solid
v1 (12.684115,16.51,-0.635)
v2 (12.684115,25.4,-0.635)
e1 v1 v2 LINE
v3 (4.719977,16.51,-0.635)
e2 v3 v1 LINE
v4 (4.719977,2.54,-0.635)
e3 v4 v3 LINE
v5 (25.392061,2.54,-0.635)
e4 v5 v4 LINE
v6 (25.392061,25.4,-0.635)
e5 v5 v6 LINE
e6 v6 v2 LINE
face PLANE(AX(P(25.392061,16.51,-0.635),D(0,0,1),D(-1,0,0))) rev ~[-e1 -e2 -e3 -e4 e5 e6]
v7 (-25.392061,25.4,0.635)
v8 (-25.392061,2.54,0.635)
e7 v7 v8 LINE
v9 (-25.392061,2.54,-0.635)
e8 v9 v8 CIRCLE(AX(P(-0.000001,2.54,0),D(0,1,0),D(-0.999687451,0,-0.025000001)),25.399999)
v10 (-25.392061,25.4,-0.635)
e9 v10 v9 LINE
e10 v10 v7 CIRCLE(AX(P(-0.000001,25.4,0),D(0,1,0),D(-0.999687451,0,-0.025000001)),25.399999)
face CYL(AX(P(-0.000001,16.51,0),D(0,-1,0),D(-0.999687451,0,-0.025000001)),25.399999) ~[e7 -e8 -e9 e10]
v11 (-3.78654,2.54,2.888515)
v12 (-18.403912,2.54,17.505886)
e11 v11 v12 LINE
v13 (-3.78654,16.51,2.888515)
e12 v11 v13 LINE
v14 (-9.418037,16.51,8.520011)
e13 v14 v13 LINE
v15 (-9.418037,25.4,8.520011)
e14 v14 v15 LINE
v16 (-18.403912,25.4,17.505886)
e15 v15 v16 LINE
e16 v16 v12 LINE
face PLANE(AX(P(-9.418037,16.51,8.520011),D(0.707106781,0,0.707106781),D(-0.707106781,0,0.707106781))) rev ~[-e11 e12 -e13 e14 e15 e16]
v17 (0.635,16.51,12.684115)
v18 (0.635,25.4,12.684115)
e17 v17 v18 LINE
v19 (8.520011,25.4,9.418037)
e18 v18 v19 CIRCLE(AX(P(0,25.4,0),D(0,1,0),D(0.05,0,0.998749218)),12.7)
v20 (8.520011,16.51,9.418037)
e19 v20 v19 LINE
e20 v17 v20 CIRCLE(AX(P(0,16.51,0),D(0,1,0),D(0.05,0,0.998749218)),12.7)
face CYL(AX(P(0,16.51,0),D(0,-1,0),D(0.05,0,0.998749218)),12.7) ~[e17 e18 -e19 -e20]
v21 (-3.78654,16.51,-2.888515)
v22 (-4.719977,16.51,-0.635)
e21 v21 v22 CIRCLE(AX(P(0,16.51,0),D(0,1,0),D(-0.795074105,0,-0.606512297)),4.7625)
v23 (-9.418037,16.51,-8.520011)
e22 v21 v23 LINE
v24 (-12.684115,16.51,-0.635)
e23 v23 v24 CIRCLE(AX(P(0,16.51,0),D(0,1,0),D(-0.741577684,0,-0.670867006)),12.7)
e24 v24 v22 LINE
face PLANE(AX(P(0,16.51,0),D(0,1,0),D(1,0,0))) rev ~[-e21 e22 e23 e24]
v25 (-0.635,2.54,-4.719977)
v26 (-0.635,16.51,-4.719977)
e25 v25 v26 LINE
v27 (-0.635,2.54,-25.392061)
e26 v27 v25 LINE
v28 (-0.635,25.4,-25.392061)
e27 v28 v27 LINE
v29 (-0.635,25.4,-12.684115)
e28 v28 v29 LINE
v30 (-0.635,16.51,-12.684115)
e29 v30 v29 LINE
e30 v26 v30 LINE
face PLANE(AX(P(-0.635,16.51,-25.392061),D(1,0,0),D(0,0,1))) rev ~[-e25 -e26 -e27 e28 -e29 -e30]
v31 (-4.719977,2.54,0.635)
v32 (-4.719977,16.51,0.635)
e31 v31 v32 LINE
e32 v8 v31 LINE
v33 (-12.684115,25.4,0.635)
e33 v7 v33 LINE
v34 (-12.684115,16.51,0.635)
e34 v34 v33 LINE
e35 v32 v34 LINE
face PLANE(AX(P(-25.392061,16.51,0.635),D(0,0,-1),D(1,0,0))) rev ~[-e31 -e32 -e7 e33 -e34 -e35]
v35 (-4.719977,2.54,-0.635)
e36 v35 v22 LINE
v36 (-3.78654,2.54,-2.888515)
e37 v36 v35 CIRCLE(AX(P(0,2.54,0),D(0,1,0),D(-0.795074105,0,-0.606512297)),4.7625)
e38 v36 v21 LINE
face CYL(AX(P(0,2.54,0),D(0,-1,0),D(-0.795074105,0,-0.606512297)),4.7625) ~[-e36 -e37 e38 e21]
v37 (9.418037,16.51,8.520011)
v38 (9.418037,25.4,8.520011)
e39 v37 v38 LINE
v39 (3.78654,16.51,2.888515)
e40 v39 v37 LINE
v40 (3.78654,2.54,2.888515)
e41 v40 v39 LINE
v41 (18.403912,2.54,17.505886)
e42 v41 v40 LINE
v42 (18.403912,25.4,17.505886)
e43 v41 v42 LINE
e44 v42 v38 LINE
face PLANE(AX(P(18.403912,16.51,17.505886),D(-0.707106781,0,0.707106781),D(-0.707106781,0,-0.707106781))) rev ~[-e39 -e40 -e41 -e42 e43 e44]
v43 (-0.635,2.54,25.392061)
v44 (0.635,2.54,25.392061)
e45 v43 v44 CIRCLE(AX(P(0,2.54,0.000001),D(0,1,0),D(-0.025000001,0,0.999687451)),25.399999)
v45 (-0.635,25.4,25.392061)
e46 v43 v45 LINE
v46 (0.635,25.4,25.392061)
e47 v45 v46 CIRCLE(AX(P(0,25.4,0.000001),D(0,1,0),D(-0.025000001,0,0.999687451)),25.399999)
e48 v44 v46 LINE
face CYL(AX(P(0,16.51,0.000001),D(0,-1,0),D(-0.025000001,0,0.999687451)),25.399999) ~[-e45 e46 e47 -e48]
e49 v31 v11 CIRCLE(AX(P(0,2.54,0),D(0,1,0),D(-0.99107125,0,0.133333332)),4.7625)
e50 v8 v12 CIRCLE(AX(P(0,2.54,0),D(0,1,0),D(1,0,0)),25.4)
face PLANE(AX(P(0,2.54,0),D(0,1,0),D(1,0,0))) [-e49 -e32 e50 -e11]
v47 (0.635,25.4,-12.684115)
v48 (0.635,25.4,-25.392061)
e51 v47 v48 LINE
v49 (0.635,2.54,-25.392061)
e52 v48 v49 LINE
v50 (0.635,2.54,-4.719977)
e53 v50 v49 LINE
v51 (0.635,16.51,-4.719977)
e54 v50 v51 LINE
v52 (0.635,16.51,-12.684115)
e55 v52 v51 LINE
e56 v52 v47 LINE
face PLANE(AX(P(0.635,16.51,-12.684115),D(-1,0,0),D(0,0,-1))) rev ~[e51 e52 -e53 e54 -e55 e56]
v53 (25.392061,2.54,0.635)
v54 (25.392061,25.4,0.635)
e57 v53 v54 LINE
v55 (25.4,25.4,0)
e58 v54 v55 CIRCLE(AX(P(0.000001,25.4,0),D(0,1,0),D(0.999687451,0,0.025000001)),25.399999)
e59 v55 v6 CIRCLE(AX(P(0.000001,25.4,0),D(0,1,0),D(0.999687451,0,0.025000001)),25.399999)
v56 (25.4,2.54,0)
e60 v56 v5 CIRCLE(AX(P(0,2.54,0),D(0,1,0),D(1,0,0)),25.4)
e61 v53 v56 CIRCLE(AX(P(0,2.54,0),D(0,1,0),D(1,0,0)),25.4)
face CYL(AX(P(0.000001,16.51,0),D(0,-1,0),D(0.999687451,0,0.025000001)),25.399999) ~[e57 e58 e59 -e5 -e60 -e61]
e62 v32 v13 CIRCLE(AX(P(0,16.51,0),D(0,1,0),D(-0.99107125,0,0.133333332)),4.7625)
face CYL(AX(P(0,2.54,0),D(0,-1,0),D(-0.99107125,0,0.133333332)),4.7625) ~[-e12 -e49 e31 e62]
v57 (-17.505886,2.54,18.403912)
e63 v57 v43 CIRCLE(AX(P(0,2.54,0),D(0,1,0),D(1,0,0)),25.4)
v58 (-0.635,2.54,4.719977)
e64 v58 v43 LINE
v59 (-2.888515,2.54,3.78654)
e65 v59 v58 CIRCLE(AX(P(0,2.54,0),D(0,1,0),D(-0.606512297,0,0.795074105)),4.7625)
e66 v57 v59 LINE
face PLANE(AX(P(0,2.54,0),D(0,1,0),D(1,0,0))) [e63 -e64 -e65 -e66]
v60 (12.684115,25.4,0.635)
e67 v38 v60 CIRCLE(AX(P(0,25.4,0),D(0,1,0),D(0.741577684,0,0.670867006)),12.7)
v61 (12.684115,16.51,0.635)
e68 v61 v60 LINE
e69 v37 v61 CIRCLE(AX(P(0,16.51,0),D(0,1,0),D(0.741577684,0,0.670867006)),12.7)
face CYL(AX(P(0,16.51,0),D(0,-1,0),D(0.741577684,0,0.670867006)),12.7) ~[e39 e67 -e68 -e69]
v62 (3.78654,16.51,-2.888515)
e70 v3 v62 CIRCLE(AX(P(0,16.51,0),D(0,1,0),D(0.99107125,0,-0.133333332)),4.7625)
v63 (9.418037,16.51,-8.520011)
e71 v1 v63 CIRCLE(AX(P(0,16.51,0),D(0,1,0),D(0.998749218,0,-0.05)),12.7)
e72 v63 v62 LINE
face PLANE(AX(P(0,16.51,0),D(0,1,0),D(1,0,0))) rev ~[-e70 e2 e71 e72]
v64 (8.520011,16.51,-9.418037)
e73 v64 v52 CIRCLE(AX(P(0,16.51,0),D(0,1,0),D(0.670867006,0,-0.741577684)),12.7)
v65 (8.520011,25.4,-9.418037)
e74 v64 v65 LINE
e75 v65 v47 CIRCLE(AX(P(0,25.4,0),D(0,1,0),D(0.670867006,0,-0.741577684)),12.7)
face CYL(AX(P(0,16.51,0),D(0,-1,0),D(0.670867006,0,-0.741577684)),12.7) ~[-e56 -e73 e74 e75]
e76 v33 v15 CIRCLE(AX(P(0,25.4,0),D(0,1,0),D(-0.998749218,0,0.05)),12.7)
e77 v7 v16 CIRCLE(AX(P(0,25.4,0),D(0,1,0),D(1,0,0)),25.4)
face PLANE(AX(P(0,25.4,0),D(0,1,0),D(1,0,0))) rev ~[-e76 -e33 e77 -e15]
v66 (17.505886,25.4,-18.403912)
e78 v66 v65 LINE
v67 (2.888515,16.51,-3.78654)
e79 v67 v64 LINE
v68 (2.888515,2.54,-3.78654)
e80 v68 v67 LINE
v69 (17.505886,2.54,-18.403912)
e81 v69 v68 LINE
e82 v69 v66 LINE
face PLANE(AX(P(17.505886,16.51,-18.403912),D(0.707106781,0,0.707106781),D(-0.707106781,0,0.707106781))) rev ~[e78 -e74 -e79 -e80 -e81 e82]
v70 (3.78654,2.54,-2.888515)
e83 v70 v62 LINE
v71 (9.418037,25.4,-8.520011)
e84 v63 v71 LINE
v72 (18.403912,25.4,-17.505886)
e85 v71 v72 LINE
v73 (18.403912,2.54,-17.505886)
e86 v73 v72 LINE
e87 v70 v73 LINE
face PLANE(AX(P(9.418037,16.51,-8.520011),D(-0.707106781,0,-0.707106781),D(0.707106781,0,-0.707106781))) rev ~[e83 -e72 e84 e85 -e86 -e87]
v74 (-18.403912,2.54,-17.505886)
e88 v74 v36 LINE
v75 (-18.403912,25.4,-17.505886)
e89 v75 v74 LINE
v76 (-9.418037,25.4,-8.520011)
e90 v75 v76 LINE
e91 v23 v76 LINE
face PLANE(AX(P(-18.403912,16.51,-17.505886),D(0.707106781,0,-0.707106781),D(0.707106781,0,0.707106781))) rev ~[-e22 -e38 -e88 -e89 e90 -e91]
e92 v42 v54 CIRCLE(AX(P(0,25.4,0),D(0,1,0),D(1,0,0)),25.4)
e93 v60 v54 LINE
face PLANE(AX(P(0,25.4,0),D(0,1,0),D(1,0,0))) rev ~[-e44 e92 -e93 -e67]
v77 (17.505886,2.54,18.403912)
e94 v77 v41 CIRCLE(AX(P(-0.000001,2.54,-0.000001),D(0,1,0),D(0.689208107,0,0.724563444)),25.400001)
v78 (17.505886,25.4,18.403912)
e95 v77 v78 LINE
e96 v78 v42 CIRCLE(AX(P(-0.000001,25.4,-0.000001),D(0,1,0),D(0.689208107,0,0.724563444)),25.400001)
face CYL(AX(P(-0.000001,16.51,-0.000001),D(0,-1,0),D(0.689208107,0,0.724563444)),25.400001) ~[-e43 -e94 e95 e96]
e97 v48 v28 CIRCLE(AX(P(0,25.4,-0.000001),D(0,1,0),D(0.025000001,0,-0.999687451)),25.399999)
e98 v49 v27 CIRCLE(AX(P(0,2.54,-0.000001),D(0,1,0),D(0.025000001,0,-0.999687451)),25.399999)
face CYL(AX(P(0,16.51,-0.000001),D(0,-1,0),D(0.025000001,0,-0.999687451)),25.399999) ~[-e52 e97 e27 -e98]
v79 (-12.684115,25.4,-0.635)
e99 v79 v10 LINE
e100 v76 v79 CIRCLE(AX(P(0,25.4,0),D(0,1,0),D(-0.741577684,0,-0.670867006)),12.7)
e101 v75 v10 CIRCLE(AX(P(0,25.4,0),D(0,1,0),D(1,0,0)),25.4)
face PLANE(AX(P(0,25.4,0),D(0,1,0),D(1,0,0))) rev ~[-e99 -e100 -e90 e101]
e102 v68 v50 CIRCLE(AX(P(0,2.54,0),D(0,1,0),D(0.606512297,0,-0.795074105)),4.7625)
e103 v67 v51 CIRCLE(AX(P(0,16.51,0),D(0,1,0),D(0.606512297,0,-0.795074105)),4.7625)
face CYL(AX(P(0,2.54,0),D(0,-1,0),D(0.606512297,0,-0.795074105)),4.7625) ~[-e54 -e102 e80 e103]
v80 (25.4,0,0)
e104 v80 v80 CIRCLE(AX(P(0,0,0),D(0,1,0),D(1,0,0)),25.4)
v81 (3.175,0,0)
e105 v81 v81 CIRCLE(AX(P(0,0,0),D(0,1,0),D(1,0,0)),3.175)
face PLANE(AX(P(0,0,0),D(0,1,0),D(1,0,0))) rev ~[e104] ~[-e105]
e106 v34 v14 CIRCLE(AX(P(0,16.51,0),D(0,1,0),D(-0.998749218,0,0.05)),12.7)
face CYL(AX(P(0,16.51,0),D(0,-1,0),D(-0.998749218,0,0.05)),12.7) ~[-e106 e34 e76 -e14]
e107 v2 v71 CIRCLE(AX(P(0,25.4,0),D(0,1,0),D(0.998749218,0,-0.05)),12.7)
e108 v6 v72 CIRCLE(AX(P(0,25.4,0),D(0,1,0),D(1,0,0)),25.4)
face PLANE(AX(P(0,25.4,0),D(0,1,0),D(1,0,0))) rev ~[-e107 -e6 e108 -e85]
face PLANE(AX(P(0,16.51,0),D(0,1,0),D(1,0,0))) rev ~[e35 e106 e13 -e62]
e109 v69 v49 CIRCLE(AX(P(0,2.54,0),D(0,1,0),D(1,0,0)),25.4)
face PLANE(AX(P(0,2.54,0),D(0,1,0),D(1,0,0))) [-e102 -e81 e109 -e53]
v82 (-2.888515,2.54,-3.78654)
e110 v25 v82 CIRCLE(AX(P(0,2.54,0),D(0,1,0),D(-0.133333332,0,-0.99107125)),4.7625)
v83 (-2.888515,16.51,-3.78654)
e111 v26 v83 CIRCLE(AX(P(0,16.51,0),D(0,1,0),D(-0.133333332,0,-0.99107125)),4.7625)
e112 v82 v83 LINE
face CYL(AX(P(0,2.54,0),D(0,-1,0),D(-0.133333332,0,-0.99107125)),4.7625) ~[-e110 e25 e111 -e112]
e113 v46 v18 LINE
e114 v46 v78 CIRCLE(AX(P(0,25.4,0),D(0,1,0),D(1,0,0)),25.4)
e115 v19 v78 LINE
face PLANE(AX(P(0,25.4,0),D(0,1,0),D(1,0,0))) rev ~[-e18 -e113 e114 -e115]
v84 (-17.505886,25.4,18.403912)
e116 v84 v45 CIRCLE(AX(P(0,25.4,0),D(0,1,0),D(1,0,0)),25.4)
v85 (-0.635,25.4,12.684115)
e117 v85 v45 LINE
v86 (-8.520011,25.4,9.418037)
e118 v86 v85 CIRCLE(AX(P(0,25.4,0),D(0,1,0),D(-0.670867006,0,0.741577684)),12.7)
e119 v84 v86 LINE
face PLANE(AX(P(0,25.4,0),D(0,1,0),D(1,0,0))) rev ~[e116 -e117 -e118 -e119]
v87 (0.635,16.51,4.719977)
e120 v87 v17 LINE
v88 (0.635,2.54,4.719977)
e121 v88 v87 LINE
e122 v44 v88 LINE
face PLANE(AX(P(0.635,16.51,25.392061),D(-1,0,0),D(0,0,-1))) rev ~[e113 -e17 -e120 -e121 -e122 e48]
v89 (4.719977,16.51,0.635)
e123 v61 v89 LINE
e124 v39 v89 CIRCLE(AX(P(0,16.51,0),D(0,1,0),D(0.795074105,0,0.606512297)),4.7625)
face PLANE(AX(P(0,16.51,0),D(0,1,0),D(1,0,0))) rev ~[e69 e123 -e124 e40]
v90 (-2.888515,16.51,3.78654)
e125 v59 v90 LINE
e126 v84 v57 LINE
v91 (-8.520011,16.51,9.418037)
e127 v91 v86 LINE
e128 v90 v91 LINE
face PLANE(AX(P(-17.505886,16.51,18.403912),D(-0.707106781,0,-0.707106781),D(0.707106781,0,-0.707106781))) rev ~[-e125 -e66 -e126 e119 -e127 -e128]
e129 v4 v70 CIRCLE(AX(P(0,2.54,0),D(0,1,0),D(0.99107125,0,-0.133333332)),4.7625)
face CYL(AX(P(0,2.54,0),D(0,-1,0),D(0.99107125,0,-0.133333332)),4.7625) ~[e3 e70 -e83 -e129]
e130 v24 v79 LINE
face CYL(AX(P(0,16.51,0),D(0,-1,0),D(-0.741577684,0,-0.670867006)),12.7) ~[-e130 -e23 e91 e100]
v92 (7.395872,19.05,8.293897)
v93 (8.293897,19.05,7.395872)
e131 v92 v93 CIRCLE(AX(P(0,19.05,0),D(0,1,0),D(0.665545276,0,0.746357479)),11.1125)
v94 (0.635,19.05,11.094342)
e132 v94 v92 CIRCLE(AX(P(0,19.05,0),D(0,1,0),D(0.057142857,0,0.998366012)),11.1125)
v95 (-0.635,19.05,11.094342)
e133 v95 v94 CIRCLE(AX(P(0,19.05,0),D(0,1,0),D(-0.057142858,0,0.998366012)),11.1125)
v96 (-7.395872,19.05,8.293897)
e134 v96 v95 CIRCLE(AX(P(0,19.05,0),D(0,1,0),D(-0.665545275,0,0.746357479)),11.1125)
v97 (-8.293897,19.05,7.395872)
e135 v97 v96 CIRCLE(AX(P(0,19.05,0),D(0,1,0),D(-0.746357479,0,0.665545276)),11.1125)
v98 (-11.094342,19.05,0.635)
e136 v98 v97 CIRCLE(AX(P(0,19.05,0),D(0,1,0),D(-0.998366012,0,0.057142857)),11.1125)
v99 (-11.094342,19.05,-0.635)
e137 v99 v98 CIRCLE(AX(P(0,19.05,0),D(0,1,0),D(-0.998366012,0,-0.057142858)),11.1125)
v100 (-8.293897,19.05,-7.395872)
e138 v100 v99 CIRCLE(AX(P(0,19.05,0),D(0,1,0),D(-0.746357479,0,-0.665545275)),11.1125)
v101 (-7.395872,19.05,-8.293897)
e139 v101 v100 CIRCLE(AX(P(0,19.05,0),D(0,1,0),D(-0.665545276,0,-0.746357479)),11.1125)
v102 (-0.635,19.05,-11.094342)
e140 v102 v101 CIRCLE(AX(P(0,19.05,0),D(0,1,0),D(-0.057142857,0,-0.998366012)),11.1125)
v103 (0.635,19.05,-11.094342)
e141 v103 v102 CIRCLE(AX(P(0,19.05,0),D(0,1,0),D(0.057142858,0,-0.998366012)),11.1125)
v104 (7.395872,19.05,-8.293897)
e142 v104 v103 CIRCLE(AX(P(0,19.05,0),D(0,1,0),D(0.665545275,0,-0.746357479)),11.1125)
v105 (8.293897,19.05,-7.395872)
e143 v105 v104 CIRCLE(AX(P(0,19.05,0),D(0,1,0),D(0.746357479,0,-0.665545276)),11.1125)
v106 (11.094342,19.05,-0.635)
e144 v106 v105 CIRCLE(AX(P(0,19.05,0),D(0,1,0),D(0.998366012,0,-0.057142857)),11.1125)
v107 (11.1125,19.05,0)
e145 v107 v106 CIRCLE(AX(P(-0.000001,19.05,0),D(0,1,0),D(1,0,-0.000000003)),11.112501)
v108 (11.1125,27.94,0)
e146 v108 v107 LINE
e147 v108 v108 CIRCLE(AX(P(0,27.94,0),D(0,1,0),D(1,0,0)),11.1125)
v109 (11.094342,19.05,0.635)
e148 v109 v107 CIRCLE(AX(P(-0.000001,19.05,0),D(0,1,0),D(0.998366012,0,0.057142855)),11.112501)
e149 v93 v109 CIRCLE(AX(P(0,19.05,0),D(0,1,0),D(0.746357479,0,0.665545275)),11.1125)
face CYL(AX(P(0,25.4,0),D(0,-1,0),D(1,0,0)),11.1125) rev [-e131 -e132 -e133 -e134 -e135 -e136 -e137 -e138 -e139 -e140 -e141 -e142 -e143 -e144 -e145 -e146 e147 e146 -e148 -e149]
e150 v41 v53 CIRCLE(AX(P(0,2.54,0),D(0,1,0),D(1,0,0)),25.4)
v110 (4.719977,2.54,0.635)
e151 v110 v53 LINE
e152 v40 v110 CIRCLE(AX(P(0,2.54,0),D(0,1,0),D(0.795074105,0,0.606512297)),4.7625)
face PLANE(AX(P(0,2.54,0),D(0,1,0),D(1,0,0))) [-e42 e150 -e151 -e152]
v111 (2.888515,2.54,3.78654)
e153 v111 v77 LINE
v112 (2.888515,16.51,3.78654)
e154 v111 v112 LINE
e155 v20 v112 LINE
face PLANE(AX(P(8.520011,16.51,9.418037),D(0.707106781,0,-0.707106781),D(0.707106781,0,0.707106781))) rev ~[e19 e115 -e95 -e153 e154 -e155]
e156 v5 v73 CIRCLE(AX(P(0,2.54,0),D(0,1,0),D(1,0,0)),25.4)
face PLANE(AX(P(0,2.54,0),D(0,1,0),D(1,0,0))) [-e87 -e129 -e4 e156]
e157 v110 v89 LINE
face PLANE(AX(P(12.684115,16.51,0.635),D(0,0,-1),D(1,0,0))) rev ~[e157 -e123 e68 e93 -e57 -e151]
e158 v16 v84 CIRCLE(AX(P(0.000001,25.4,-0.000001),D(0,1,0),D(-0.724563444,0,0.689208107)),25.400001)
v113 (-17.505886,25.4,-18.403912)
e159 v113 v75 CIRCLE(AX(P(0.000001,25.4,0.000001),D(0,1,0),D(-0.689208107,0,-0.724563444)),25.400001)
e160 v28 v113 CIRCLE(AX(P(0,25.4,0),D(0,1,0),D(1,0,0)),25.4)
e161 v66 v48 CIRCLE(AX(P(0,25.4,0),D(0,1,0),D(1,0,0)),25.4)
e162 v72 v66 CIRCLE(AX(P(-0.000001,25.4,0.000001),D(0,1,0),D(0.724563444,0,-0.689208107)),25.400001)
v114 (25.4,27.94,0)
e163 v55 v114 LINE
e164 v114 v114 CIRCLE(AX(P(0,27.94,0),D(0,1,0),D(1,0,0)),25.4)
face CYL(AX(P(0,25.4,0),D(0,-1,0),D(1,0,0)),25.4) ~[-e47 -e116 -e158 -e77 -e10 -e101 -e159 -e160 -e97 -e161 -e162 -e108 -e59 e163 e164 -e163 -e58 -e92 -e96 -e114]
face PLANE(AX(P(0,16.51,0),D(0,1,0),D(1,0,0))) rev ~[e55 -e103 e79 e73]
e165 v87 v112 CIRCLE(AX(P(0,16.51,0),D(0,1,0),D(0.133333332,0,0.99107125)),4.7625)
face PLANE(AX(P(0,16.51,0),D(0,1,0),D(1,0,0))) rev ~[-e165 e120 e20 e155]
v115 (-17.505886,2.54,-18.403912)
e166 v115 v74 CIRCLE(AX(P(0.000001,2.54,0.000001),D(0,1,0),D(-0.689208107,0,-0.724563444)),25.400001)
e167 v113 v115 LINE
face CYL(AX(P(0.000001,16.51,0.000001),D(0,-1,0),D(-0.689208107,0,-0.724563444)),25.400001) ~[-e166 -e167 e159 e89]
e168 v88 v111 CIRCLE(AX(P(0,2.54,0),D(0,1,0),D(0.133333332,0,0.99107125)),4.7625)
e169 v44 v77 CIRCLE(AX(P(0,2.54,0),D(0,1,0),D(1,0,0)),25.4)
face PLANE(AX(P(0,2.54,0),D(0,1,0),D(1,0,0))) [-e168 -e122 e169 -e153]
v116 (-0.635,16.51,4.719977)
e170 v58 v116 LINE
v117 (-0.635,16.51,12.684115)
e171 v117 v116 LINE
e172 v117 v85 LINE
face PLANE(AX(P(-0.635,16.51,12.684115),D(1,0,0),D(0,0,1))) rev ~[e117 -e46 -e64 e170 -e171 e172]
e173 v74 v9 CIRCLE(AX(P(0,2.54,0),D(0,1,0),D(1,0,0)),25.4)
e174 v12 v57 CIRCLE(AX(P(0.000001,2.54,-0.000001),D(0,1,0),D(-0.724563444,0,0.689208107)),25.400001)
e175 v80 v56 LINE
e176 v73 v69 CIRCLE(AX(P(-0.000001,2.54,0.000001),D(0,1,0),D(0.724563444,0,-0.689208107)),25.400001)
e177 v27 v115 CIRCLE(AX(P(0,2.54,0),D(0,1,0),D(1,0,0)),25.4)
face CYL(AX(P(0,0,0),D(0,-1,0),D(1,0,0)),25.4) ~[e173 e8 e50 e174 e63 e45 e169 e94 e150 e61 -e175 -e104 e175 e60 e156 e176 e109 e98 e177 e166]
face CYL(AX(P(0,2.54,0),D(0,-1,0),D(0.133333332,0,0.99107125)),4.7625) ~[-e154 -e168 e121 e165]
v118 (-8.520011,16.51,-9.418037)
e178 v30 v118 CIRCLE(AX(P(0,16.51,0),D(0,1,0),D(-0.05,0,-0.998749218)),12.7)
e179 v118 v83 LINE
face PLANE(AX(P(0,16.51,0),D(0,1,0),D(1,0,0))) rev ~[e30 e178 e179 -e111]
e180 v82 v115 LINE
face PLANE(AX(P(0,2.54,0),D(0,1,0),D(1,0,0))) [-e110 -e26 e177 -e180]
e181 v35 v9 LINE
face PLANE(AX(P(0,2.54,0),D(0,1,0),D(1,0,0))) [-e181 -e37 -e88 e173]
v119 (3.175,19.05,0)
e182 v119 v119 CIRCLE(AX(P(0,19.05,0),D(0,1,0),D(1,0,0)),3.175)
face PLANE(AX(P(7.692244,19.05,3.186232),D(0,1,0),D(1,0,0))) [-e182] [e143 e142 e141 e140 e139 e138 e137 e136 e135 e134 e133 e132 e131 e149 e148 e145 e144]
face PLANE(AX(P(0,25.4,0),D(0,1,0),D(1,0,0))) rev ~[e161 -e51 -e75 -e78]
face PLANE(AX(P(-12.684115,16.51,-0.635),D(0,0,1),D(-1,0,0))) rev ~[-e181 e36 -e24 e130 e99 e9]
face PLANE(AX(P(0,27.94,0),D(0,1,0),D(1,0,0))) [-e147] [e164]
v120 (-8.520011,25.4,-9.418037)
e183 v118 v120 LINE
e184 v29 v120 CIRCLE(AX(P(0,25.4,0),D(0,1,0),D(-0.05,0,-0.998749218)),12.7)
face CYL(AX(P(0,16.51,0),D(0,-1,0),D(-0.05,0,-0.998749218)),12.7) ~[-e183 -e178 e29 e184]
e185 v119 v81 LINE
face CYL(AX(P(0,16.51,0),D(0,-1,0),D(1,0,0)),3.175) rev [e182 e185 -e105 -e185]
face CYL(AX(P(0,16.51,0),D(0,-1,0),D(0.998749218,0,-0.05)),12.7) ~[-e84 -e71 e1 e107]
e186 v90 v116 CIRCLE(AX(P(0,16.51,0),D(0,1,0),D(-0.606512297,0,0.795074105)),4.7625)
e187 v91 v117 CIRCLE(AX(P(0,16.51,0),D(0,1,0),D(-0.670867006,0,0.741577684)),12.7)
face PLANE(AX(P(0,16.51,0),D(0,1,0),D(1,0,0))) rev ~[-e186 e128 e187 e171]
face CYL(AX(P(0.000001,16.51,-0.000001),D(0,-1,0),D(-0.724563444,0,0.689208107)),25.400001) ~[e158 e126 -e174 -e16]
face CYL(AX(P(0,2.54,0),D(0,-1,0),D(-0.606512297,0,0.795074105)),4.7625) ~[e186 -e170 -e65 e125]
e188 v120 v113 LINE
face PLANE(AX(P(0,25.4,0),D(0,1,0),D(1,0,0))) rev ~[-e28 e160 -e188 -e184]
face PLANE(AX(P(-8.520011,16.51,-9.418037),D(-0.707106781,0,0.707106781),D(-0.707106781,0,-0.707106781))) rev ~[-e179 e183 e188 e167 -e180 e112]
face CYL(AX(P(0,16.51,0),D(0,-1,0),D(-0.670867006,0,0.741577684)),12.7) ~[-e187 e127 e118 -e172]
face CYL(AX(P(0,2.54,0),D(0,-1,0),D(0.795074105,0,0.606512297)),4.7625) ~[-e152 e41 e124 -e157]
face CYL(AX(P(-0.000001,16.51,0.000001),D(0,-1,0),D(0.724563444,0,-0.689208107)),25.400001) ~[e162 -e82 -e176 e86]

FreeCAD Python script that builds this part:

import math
import FreeCAD as App
import Part
import Sketcher
Q = App.Units.Quantity

doc = App.newDocument("Part")
body = doc.addObject("PartDesign::Body", "Body")

# Sketch on XZ plane
sketch1 = body.newObject("Sketcher::SketchObject", "Sketch")
sketch1.AttachmentSupport = (doc.getObject("XZ_Plane"), [""])
sketch1.MapMode = "FlatFace"
sketch1.addGeometry(Part.Circle(App.Vector(0, 0, 0), App.Vector(0, 0, 1), 25.4), False)
sketch1.addGeometry(Part.Circle(App.Vector(0, 0, 0), App.Vector(0, 0, 1), 3.2), False)
sketch1.addConstraint(Sketcher.Constraint("Coincident", 0, 3, -1, 1))
sketch1.addConstraint(Sketcher.Constraint("Coincident", 1, 3, -1, 1))
sketch1.addConstraint(Sketcher.Constraint("Diameter", 0, Q("2 in")))
sketch1.addConstraint(Sketcher.Constraint("Diameter", 1, Q("0.25 in")))
pad1 = body.newObject("PartDesign::Pad", "Pad")
pad1.Profile = sketch1
pad1.Length = Q("0.1 in")
pad1.Reversed = True

# Sketch on XZ plane
sketch2 = body.newObject("Sketcher::SketchObject", "Sketch001")
sketch2.AttachmentSupport = (doc.getObject("XZ_Plane"), [""])
sketch2.MapMode = "FlatFace"
sketch2.AttachmentOffset = App.Placement(App.Vector(0, 0, -0.1 * 25.4), App.Rotation())
sketch2.addGeometry(Part.ArcOfCircle(Part.Circle(App.Vector(0, 0, 0), App.Vector(0, 0, 1), 25.4), math.radians(-91.43), math.radians(-88.57)), False)
sketch2.addGeometry(Part.LineSegment(App.Vector(-0.6, -25.4, 0), App.Vector(-0.6, -4.7, 0)), False)
sketch2.addGeometry(Part.ArcOfCircle(Part.Circle(App.Vector(0, 0, 0), App.Vector(0, 0, 1), 4.8), math.radians(-127), math.radians(-98)), False)
sketch2.addGeometry(Part.LineSegment(App.Vector(-2.9, -3.8, 0), App.Vector(-17.5, -18.4, 0)), False)
sketch2.addGeometry(Part.ArcOfCircle(Part.Circle(App.Vector(0, 0, 0), App.Vector(0, 0, 1), 25.4), math.radians(-136.43), math.radians(-133.57)), False)
sketch2.addGeometry(Part.LineSegment(App.Vector(-18.4, -17.5, 0), App.Vector(-3.8, -2.9, 0)), False)
sketch2.addGeometry(Part.ArcOfCircle(Part.Circle(App.Vector(0, 0, 0), App.Vector(0, 0, 1), 4.8), math.radians(-172), math.radians(-143)), False)
sketch2.addGeometry(Part.LineSegment(App.Vector(-4.7, -0.6, 0), App.Vector(-25.4, -0.6, 0)), False)
sketch2.addGeometry(Part.ArcOfCircle(Part.Circle(App.Vector(0, 0, 0), App.Vector(0, 0, 1), 25.4), math.radians(178.57), math.radians(181.43)), False)
sketch2.addGeometry(Part.LineSegment(App.Vector(-25.4, 0.6, 0), App.Vector(-4.7, 0.6, 0)), False)
sketch2.addGeometry(Part.ArcOfCircle(Part.Circle(App.Vector(0, 0, 0), App.Vector(0, 0, 1), 4.8), math.radians(143), math.radians(172)), False)
sketch2.addGeometry(Part.LineSegment(App.Vector(-3.8, 2.9, 0), App.Vector(-18.4, 17.5, 0)), False)
sketch2.addGeometry(Part.ArcOfCircle(Part.Circle(App.Vector(0, 0, 0), App.Vector(0, 0, 1), 25.4), math.radians(133.57), math.radians(136.43)), False)
sketch2.addGeometry(Part.LineSegment(App.Vector(-17.5, 18.4, 0), App.Vector(-2.9, 3.8, 0)), False)
sketch2.addGeometry(Part.ArcOfCircle(Part.Circle(App.Vector(0, 0, 0), App.Vector(0, 0, 1), 4.8), math.radians(98), math.radians(127)), False)
sketch2.addGeometry(Part.LineSegment(App.Vector(-0.6, 4.7, 0), App.Vector(-0.6, 25.4, 0)), False)
sketch2.addGeometry(Part.ArcOfCircle(Part.Circle(App.Vector(0, 0, 0), App.Vector(0, 0, 1), 25.4), math.radians(88.57), math.radians(91.43)), False)
sketch2.addGeometry(Part.LineSegment(App.Vector(0.6, 25.4, 0), App.Vector(0.6, 4.7, 0)), False)
sketch2.addGeometry(Part.ArcOfCircle(Part.Circle(App.Vector(0, 0, 0), App.Vector(0, 0, 1), 4.8), math.radians(53), math.radians(82)), False)
sketch2.addGeometry(Part.LineSegment(App.Vector(2.9, 3.8, 0), App.Vector(17.5, 18.4, 0)), False)
sketch2.addGeometry(Part.ArcOfCircle(Part.Circle(App.Vector(0, 0, 0), App.Vector(0, 0, 1), 25.4), math.radians(43.57), math.radians(46.43)), False)
sketch2.addGeometry(Part.LineSegment(App.Vector(18.4, 17.5, 0), App.Vector(3.8, 2.9, 0)), False)
sketch2.addGeometry(Part.ArcOfCircle(Part.Circle(App.Vector(0, 0, 0), App.Vector(0, 0, 1), 4.8), math.radians(8), math.radians(37)), False)
sketch2.addGeometry(Part.LineSegment(App.Vector(4.7, 0.6, 0), App.Vector(25.4, 0.6, 0)), False)
sketch2.addGeometry(Part.ArcOfCircle(Part.Circle(App.Vector(0, 0, 0), App.Vector(0, 0, 1), 25.4), math.radians(-1.43), math.radians(1.43)), False)
sketch2.addGeometry(Part.LineSegment(App.Vector(25.4, -0.6, 0), App.Vector(4.7, -0.6, 0)), False)
sketch2.addGeometry(Part.ArcOfCircle(Part.Circle(App.Vector(0, 0, 0), App.Vector(0, 0, 1), 4.8), math.radians(-37), math.radians(-8)), False)
sketch2.addGeometry(Part.LineSegment(App.Vector(3.8, -2.9, 0), App.Vector(18.4, -17.5, 0)), False)
sketch2.addGeometry(Part.ArcOfCircle(Part.Circle(App.Vector(0, 0, 0), App.Vector(0, 0, 1), 25.4), math.radians(-46.43), math.radians(-43.57)), False)
sketch2.addGeometry(Part.LineSegment(App.Vector(17.5, -18.4, 0), App.Vector(2.9, -3.8, 0)), False)
sketch2.addGeometry(Part.ArcOfCircle(Part.Circle(App.Vector(0, 0, 0), App.Vector(0, 0, 1), 4.8), math.radians(-82), math.radians(-53)), False)
sketch2.addGeometry(Part.LineSegment(App.Vector(0.6, -4.7, 0), App.Vector(0.6, -25.4, 0)), False)
sketch2.addGeometry(Part.Circle(App.Vector(0, 0, 0), App.Vector(0, 0, 1), 3.2), False)
sketch2.addConstraint(Sketcher.Constraint("Coincident", 0, 1, 1, 1))
sketch2.addConstraint(Sketcher.Constraint("Coincident", 1, 2, 2, 2))
sketch2.addConstraint(Sketcher.Constraint("Coincident", 2, 1, 3, 1))
sketch2.addConstraint(Sketcher.Constraint("Coincident", 3, 2, 4, 2))
sketch2.addConstraint(Sketcher.Constraint("Coincident", 4, 1, 5, 1))
sketch2.addConstraint(Sketcher.Constraint("Coincident", 5, 2, 6, 2))
sketch2.addConstraint(Sketcher.Constraint("Coincident", 6, 1, 7, 1))
sketch2.addConstraint(Sketcher.Constraint("Coincident", 7, 2, 8, 2))
sketch2.addConstraint(Sketcher.Constraint("Coincident", 8, 1, 9, 1))
sketch2.addConstraint(Sketcher.Constraint("Coincident", 9, 2, 10, 2))
sketch2.addConstraint(Sketcher.Constraint("Coincident", 10, 1, 11, 1))
sketch2.addConstraint(Sketcher.Constraint("Coincident", 11, 2, 12, 2))
sketch2.addConstraint(Sketcher.Constraint("Coincident", 12, 1, 13, 1))
sketch2.addConstraint(Sketcher.Constraint("Coincident", 13, 2, 14, 2))
sketch2.addConstraint(Sketcher.Constraint("Coincident", 14, 1, 15, 1))
sketch2.addConstraint(Sketcher.Constraint("Coincident", 15, 2, 16, 2))
sketch2.addConstraint(Sketcher.Constraint("Coincident", 16, 1, 17, 1))
sketch2.addConstraint(Sketcher.Constraint("Coincident", 17, 2, 18, 2))
sketch2.addConstraint(Sketcher.Constraint("Coincident", 18, 1, 19, 1))
sketch2.addConstraint(Sketcher.Constraint("Coincident", 19, 2, 20, 2))
sketch2.addConstraint(Sketcher.Constraint("Coincident", 20, 1, 21, 1))
sketch2.addConstraint(Sketcher.Constraint("Coincident", 21, 2, 22, 2))
sketch2.addConstraint(Sketcher.Constraint("Coincident", 22, 1, 23, 1))
sketch2.addConstraint(Sketcher.Constraint("Coincident", 23, 2, 24, 2))
sketch2.addConstraint(Sketcher.Constraint("Coincident", 24, 1, 25, 1))
sketch2.addConstraint(Sketcher.Constraint("Coincident", 25, 2, 26, 2))
sketch2.addConstraint(Sketcher.Constraint("Coincident", 26, 1, 27, 1))
sketch2.addConstraint(Sketcher.Constraint("Coincident", 27, 2, 28, 2))
sketch2.addConstraint(Sketcher.Constraint("Coincident", 28, 1, 29, 1))
sketch2.addConstraint(Sketcher.Constraint("Coincident", 29, 2, 30, 2))
sketch2.addConstraint(Sketcher.Constraint("Coincident", 30, 1, 31, 1))
sketch2.addConstraint(Sketcher.Constraint("Coincident", 31, 2, 0, 2))
sketch2.addConstraint(Sketcher.Constraint("Vertical", 1))
sketch2.addConstraint(Sketcher.Constraint("Horizontal", 7))
sketch2.addConstraint(Sketcher.Constraint("Horizontal", 9))
sketch2.addConstraint(Sketcher.Constraint("Vertical", 15))
sketch2.addConstraint(Sketcher.Constraint("Vertical", 17))
sketch2.addConstraint(Sketcher.Constraint("Horizontal", 23))
sketch2.addConstraint(Sketcher.Constraint("Horizontal", 25))
sketch2.addConstraint(Sketcher.Constraint("Vertical", 31))
sketch2.addConstraint(Sketcher.Constraint("Coincident", 0, 3, -1, 1))
sketch2.addConstraint(Sketcher.Constraint("Coincident", 2, 3, -1, 1))
sketch2.addConstraint(Sketcher.Constraint("Coincident", 4, 3, -1, 1))
sketch2.addConstraint(Sketcher.Constraint("Coincident", 6, 3, -1, 1))
sketch2.addConstraint(Sketcher.Constraint("Coincident", 8, 3, -1, 1))
sketch2.addConstraint(Sketcher.Constraint("Coincident", 10, 3, -1, 1))
sketch2.addConstraint(Sketcher.Constraint("Coincident", 12, 3, -1, 1))
sketch2.addConstraint(Sketcher.Constraint("Coincident", 14, 3, -1, 1))
sketch2.addConstraint(Sketcher.Constraint("Coincident", 16, 3, -1, 1))
sketch2.addConstraint(Sketcher.Constraint("Coincident", 18, 3, -1, 1))
sketch2.addConstraint(Sketcher.Constraint("Coincident", 20, 3, -1, 1))
sketch2.addConstraint(Sketcher.Constraint("Coincident", 22, 3, -1, 1))
sketch2.addConstraint(Sketcher.Constraint("Coincident", 24, 3, -1, 1))
sketch2.addConstraint(Sketcher.Constraint("Coincident", 26, 3, -1, 1))
sketch2.addConstraint(Sketcher.Constraint("Coincident", 28, 3, -1, 1))
sketch2.addConstraint(Sketcher.Constraint("Coincident", 30, 3, -1, 1))
sketch2.addConstraint(Sketcher.Constraint("Coincident", 32, 3, -1, 1))
sketch2.addConstraint(Sketcher.Constraint("Equal", 2, 6))
sketch2.addConstraint(Sketcher.Constraint("Equal", 0, 8))
sketch2.addConstraint(Sketcher.Constraint("Equal", 6, 10))
sketch2.addConstraint(Sketcher.Constraint("Equal", 4, 12))
sketch2.addConstraint(Sketcher.Constraint("Equal", 10, 14))
sketch2.addConstraint(Sketcher.Constraint("Equal", 8, 16))
sketch2.addConstraint(Sketcher.Constraint("Equal", 14, 18))
sketch2.addConstraint(Sketcher.Constraint("Equal", 12, 20))
sketch2.addConstraint(Sketcher.Constraint("Equal", 18, 22))
sketch2.addConstraint(Sketcher.Constraint("Equal", 16, 24))
sketch2.addConstraint(Sketcher.Constraint("Equal", 22, 26))
sketch2.addConstraint(Sketcher.Constraint("Equal", 20, 28))
sketch2.addConstraint(Sketcher.Constraint("Equal", 26, 30))
sketch2.addConstraint(Sketcher.Constraint("Parallel", 3, 5))
sketch2.addConstraint(Sketcher.Constraint("Perpendicular", 5, 11))
sketch2.addConstraint(Sketcher.Constraint("Parallel", 11, 13))
sketch2.addConstraint(Sketcher.Constraint("Perpendicular", 13, 19))
sketch2.addConstraint(Sketcher.Constraint("Parallel", 19, 21))
sketch2.addConstraint(Sketcher.Constraint("Perpendicular", 21, 27))
sketch2.addConstraint(Sketcher.Constraint("Parallel", 27, 29))
sketch2.addConstraint(Sketcher.Constraint("Horizontal", 15, 2, 16, 1))
sketch2.addConstraint(Sketcher.Constraint("Horizontal", 13, 2, 18, 1))
sketch2.addConstraint(Sketcher.Constraint("Horizontal", 12, 1, 19, 2))
sketch2.addConstraint(Sketcher.Constraint("Horizontal", 11, 2, 20, 1))
sketch2.addConstraint(Sketcher.Constraint("Horizontal", 9, 2, 22, 1))
sketch2.addConstraint(Sketcher.Constraint("Horizontal", 7, 2, 24, 1))
sketch2.addConstraint(Sketcher.Constraint("Horizontal", 5, 2, 26, 1))
sketch2.addConstraint(Sketcher.Constraint("Horizontal", 3, 2, 28, 1))
sketch2.addConstraint(Sketcher.Constraint("Horizontal", 1, 2, 30, 1))
sketch2.addConstraint(Sketcher.Constraint("Vertical", 7, 2, 8, 1))
sketch2.addConstraint(Sketcher.Constraint("Vertical", 5, 2, 10, 1))
sketch2.addConstraint(Sketcher.Constraint("Vertical", 3, 2, 12, 1))
sketch2.addConstraint(Sketcher.Constraint("Vertical", 1, 2, 14, 1))
sketch2.addConstraint(Sketcher.Constraint("Equal", 25, 1))
sketch2.addConstraint(Sketcher.Constraint("Equal", 3, 5))
sketch2.addConstraint(Sketcher.Constraint("Radius", 0, Q("1 in")))
sketch2.addConstraint(Sketcher.Constraint("Radius", 4, Q("1.0000001 in")))
sketch2.addConstraint(Sketcher.Constraint("Diameter", 32, Q("0.25 in")))
sketch2.addConstraint(Sketcher.Constraint("Radius", 2, Q("0.1875 in")))
sketch2.addConstraint(Sketcher.Constraint("DistanceY", 7, 2, 8, 1, Q("0.05 in")))
sketch2.addConstraint(Sketcher.Constraint("DistanceY", 2, 1, -1, 1, Q("3.78654 mm")))
pad2 = body.newObject("PartDesign::Pad", "Pad001")
pad2.Profile = sketch2
pad2.Length = Q("0.55 in")
pad2.Reversed = True

# Sketch on XZ plane
sketch3 = body.newObject("Sketcher::SketchObject", "Sketch002")
sketch3.AttachmentSupport = (doc.getObject("XZ_Plane"), [""])
sketch3.MapMode = "FlatFace"
sketch3.AttachmentOffset = App.Placement(App.Vector(0, 0, -0.65 * 25.4), App.Rotation())
sketch3.addGeometry(Part.ArcOfCircle(Part.Circle(App.Vector(0, 0, 0), App.Vector(0, 0, 1), 11.1), math.radians(3), math.radians(42)), False)
sketch3.addGeometry(Part.ArcOfCircle(Part.Circle(App.Vector(0, 0, 0), App.Vector(0, 0, 1), 11.1), math.radians(0), math.radians(3.28)), False)
sketch3.addGeometry(Part.ArcOfCircle(Part.Circle(App.Vector(0, 0, 0), App.Vector(0, 0, 1), 11.1), math.radians(-3.28), math.radians(0)), False)
sketch3.addGeometry(Part.ArcOfCircle(Part.Circle(App.Vector(0, 0, 0), App.Vector(0, 0, 1), 11.1), math.radians(-42), math.radians(-3)), False)
sketch3.addGeometry(Part.ArcOfCircle(Part.Circle(App.Vector(0, 0, 0), App.Vector(0, 0, 1), 11.1), math.radians(-48.28), math.radians(-41.72)), False)
sketch3.addGeometry(Part.ArcOfCircle(Part.Circle(App.Vector(0, 0, 0), App.Vector(0, 0, 1), 11.1), math.radians(-87), math.radians(-48)), False)
sketch3.addGeometry(Part.ArcOfCircle(Part.Circle(App.Vector(0, 0, 0), App.Vector(0, 0, 1), 11.1), math.radians(-93.28), math.radians(-86.72)), False)
sketch3.addGeometry(Part.ArcOfCircle(Part.Circle(App.Vector(0, 0, 0), App.Vector(0, 0, 1), 11.1), math.radians(-132), math.radians(-93)), False)
sketch3.addGeometry(Part.ArcOfCircle(Part.Circle(App.Vector(0, 0, 0), App.Vector(0, 0, 1), 11.1), math.radians(-138.28), math.radians(-131.72)), False)
sketch3.addGeometry(Part.ArcOfCircle(Part.Circle(App.Vector(0, 0, 0), App.Vector(0, 0, 1), 11.1), math.radians(-177), math.radians(-138)), False)
sketch3.addGeometry(Part.ArcOfCircle(Part.Circle(App.Vector(0, 0, 0), App.Vector(0, 0, 1), 11.1), math.radians(176.72), math.radians(183.28)), False)
sketch3.addGeometry(Part.ArcOfCircle(Part.Circle(App.Vector(0, 0, 0), App.Vector(0, 0, 1), 11.1), math.radians(138), math.radians(177)), False)
sketch3.addGeometry(Part.ArcOfCircle(Part.Circle(App.Vector(0, 0, 0), App.Vector(0, 0, 1), 11.1), math.radians(131.72), math.radians(138.28)), False)
sketch3.addGeometry(Part.ArcOfCircle(Part.Circle(App.Vector(0, 0, 0), App.Vector(0, 0, 1), 11.1), math.radians(93), math.radians(132)), False)
sketch3.addGeometry(Part.ArcOfCircle(Part.Circle(App.Vector(0, 0, 0), App.Vector(0, 0, 1), 11.1), math.radians(86.72), math.radians(93.28)), False)
sketch3.addGeometry(Part.ArcOfCircle(Part.Circle(App.Vector(0, 0, 0), App.Vector(0, 0, 1), 11.1), math.radians(48), math.radians(87)), False)
sketch3.addGeometry(Part.ArcOfCircle(Part.Circle(App.Vector(0, 0, 0), App.Vector(0, 0, 1), 11.1), math.radians(41.72), math.radians(48.28)), False)
sketch3.addGeometry(Part.Circle(App.Vector(0, 0, 0), App.Vector(0, 0, 1), 3.2), False)
sketch3.addConstraint(Sketcher.Constraint("Tangent", 0, 1, 1, 2))
sketch3.addConstraint(Sketcher.Constraint("Tangent", 1, 1, 2, 2))
sketch3.addConstraint(Sketcher.Constraint("Tangent", 2, 1, 3, 2))
sketch3.addConstraint(Sketcher.Constraint("Tangent", 3, 1, 4, 2))
sketch3.addConstraint(Sketcher.Constraint("Tangent", 4, 1, 5, 2))
sketch3.addConstraint(Sketcher.Constraint("Tangent", 5, 1, 6, 2))
sketch3.addConstraint(Sketcher.Constraint("Tangent", 6, 1, 7, 2))
sketch3.addConstraint(Sketcher.Constraint("Tangent", 7, 1, 8, 2))
sketch3.addConstraint(Sketcher.Constraint("Tangent", 8, 1, 9, 2))
sketch3.addConstraint(Sketcher.Constraint("Tangent", 9, 1, 10, 2))
sketch3.addConstraint(Sketcher.Constraint("Tangent", 10, 1, 11, 2))
sketch3.addConstraint(Sketcher.Constraint("Tangent", 11, 1, 12, 2))
sketch3.addConstraint(Sketcher.Constraint("Tangent", 12, 1, 13, 2))
sketch3.addConstraint(Sketcher.Constraint("Tangent", 13, 1, 14, 2))
sketch3.addConstraint(Sketcher.Constraint("Tangent", 14, 1, 15, 2))
sketch3.addConstraint(Sketcher.Constraint("Tangent", 15, 1, 16, 2))
sketch3.addConstraint(Sketcher.Constraint("Tangent", 16, 1, 0, 2))
sketch3.addConstraint(Sketcher.Constraint("Coincident", 0, 3, -1, 1))
sketch3.addConstraint(Sketcher.Constraint("Coincident", 2, 3, -1, 1))
sketch3.addConstraint(Sketcher.Constraint("Coincident", 4, 3, -1, 1))
sketch3.addConstraint(Sketcher.Constraint("Coincident", 6, 3, -1, 1))
sketch3.addConstraint(Sketcher.Constraint("Coincident", 8, 3, -1, 1))
sketch3.addConstraint(Sketcher.Constraint("Coincident", 10, 3, -1, 1))
sketch3.addConstraint(Sketcher.Constraint("Coincident", 12, 3, -1, 1))
sketch3.addConstraint(Sketcher.Constraint("Coincident", 14, 3, -1, 1))
sketch3.addConstraint(Sketcher.Constraint("Coincident", 17, 3, -1, 1))
sketch3.addConstraint(Sketcher.Constraint("PointOnObject", 1, 1, -1))
sketch3.addConstraint(Sketcher.Constraint("Horizontal", 5, 1, 6, 1))
sketch3.addConstraint(Sketcher.Constraint("Horizontal", 4, 1, 7, 1))
sketch3.addConstraint(Sketcher.Constraint("Horizontal", 3, 1, 8, 1))
sketch3.addConstraint(Sketcher.Constraint("Horizontal", 2, 1, 9, 1))
sketch3.addConstraint(Sketcher.Constraint("Horizontal", 0, 1, 10, 1))
sketch3.addConstraint(Sketcher.Constraint("Horizontal", 13, 1, 14, 1))
sketch3.addConstraint(Sketcher.Constraint("Horizontal", 12, 1, 15, 1))
sketch3.addConstraint(Sketcher.Constraint("Horizontal", 11, 1, 16, 1))
sketch3.addConstraint(Sketcher.Constraint("Vertical", 0, 1, 2, 1))
sketch3.addConstraint(Sketcher.Constraint("Vertical", 8, 1, 11, 1))
sketch3.addConstraint(Sketcher.Constraint("Vertical", 7, 1, 12, 1))
sketch3.addConstraint(Sketcher.Constraint("Vertical", 6, 1, 13, 1))
sketch3.addConstraint(Sketcher.Constraint("Diameter", 17, Q("0.25 in")))
sketch3.addConstraint(Sketcher.Constraint("Radius", 0, Q("0.4375 in")))
sketch3.addConstraint(Sketcher.Constraint("DistanceY", 2, 1, 0, 1, Q("0.05 in")))
sketch3.addConstraint(Sketcher.Constraint("DistanceX", 6, 1, 5, 1, Q("0.05 in")))
sketch3.addConstraint(Sketcher.Constraint("DistanceY", 3, 1, -1, 1, Q("7.395872 mm")))
sketch3.addConstraint(Sketcher.Constraint("DistanceX", -1, 1, 4, 1, Q("7.395872 mm")))
pad3 = body.newObject("PartDesign::Pad", "Pad002")
pad3.Profile = sketch3
pad3.Length = Q("0.1 in")
pad3.Reversed = True

# Sketch on XZ plane
sketch4 = body.newObject("Sketcher::SketchObject", "Sketch003")
sketch4.AttachmentSupport = (doc.getObject("XZ_Plane"), [""])
sketch4.MapMode = "FlatFace"
sketch4.AttachmentOffset = App.Placement(App.Vector(0, 0, -0.65 * 25.4), App.Rotation())
sketch4.addGeometry(Part.LineSegment(App.Vector(-0.6, 12.7, 0), App.Vector(-0.6, 25.4, 0)), False)
sketch4.addGeometry(Part.ArcOfCircle(Part.Circle(App.Vector(0, 0, 0), App.Vector(0, 0, 1), 25.4), math.radians(88.57), math.radians(91.43)), False)
sketch4.addGeometry(Part.LineSegment(App.Vector(0.6, 25.4, 0), App.Vector(0.6, 12.7, 0)), False)
sketch4.addGeometry(Part.ArcOfCircle(Part.Circle(App.Vector(0, 0, 0), App.Vector(0, 0, 1), 12.7), math.radians(48), math.radians(87)), False)
sketch4.addGeometry(Part.LineSegment(App.Vector(8.5, 9.4, 0), App.Vector(17.5, 18.4, 0)), False)
sketch4.addGeometry(Part.ArcOfCircle(Part.Circle(App.Vector(0, 0, 0), App.Vector(0, 0, 1), 25.4), math.radians(43.57), math.radians(46.43)), False)
sketch4.addGeometry(Part.LineSegment(App.Vector(18.4, 17.5, 0), App.Vector(9.4, 8.5, 0)), False)
sketch4.addGeometry(Part.ArcOfCircle(Part.Circle(App.Vector(0, 0, 0), App.Vector(0, 0, 1), 12.7), math.radians(3), math.radians(42)), False)
sketch4.addGeometry(Part.LineSegment(App.Vector(12.7, 0.6, 0), App.Vector(25.4, 0.6, 0)), False)
sketch4.addGeometry(Part.ArcOfCircle(Part.Circle(App.Vector(0, 0, 0), App.Vector(0, 0, 1), 25.4), math.radians(-1.43), math.radians(1.43)), False)
sketch4.addGeometry(Part.LineSegment(App.Vector(25.4, -0.6, 0), App.Vector(12.7, -0.6, 0)), False)
sketch4.addGeometry(Part.ArcOfCircle(Part.Circle(App.Vector(0, 0, 0), App.Vector(0, 0, 1), 12.7), math.radians(-42), math.radians(-3)), False)
sketch4.addGeometry(Part.LineSegment(App.Vector(9.4, -8.5, 0), App.Vector(18.4, -17.5, 0)), False)
sketch4.addGeometry(Part.ArcOfCircle(Part.Circle(App.Vector(0, 0, 0), App.Vector(0, 0, 1), 25.4), math.radians(-46.43), math.radians(-43.57)), False)
sketch4.addGeometry(Part.LineSegment(App.Vector(17.5, -18.4, 0), App.Vector(8.5, -9.4, 0)), False)
sketch4.addGeometry(Part.ArcOfCircle(Part.Circle(App.Vector(0, 0, 0), App.Vector(0, 0, 1), 12.7), math.radians(-87), math.radians(-48)), False)
sketch4.addGeometry(Part.LineSegment(App.Vector(0.6, -12.7, 0), App.Vector(0.6, -25.4, 0)), False)
sketch4.addGeometry(Part.ArcOfCircle(Part.Circle(App.Vector(0, 0, 0), App.Vector(0, 0, 1), 25.4), math.radians(-91.43), math.radians(-88.57)), False)
sketch4.addGeometry(Part.LineSegment(App.Vector(-0.6, -25.4, 0), App.Vector(-0.6, -12.7, 0)), False)
sketch4.addGeometry(Part.ArcOfCircle(Part.Circle(App.Vector(0, 0, 0), App.Vector(0, 0, 1), 12.7), math.radians(-132), math.radians(-93)), False)
sketch4.addGeometry(Part.LineSegment(App.Vector(-8.5, -9.4, 0), App.Vector(-17.5, -18.4, 0)), False)
sketch4.addGeometry(Part.ArcOfCircle(Part.Circle(App.Vector(0, 0, 0), App.Vector(0, 0, 1), 25.4), math.radians(-136.43), math.radians(-133.57)), False)
sketch4.addGeometry(Part.LineSegment(App.Vector(-18.4, -17.5, 0), App.Vector(-9.4, -8.5, 0)), False)
sketch4.addGeometry(Part.ArcOfCircle(Part.Circle(App.Vector(0, 0, 0), App.Vector(0, 0, 1), 12.7), math.radians(-177), math.radians(-138)), False)
sketch4.addGeometry(Part.LineSegment(App.Vector(-12.7, -0.6, 0), App.Vector(-25.4, -0.6, 0)), False)
sketch4.addGeometry(Part.ArcOfCircle(Part.Circle(App.Vector(0, 0, 0), App.Vector(0, 0, 1), 25.4), math.radians(178.57), math.radians(181.43)), False)
sketch4.addGeometry(Part.LineSegment(App.Vector(-25.4, 0.6, 0), App.Vector(-12.7, 0.6, 0)), False)
sketch4.addGeometry(Part.ArcOfCircle(Part.Circle(App.Vector(0, 0, 0), App.Vector(0, 0, 1), 12.7), math.radians(138), math.radians(177)), False)
sketch4.addGeometry(Part.LineSegment(App.Vector(-9.4, 8.5, 0), App.Vector(-18.4, 17.5, 0)), False)
sketch4.addGeometry(Part.ArcOfCircle(Part.Circle(App.Vector(0, 0, 0), App.Vector(0, 0, 1), 25.4), math.radians(133.57), math.radians(136.43)), False)
sketch4.addGeometry(Part.LineSegment(App.Vector(-17.5, 18.4, 0), App.Vector(-8.5, 9.4, 0)), False)
sketch4.addGeometry(Part.ArcOfCircle(Part.Circle(App.Vector(0, 0, 0), App.Vector(0, 0, 1), 12.7), math.radians(93), math.radians(132)), False)
sketch4.addGeometry(Part.Circle(App.Vector(0, 0, 0), App.Vector(0, 0, 1), 11.1), False)
sketch4.addConstraint(Sketcher.Constraint("Coincident", 0, 2, 1, 2))
sketch4.addConstraint(Sketcher.Constraint("Coincident", 1, 1, 2, 1))
sketch4.addConstraint(Sketcher.Constraint("Coincident", 2, 2, 3, 2))
sketch4.addConstraint(Sketcher.Constraint("Coincident", 3, 1, 4, 1))
sketch4.addConstraint(Sketcher.Constraint("Coincident", 4, 2, 5, 2))
sketch4.addConstraint(Sketcher.Constraint("Coincident", 5, 1, 6, 1))
sketch4.addConstraint(Sketcher.Constraint("Coincident", 6, 2, 7, 2))
sketch4.addConstraint(Sketcher.Constraint("Coincident", 7, 1, 8, 1))
sketch4.addConstraint(Sketcher.Constraint("Coincident", 8, 2, 9, 2))
sketch4.addConstraint(Sketcher.Constraint("Coincident", 9, 1, 10, 1))
sketch4.addConstraint(Sketcher.Constraint("Coincident", 10, 2, 11, 2))
sketch4.addConstraint(Sketcher.Constraint("Coincident", 11, 1, 12, 1))
sketch4.addConstraint(Sketcher.Constraint("Coincident", 12, 2, 13, 2))
sketch4.addConstraint(Sketcher.Constraint("Coincident", 13, 1, 14, 1))
sketch4.addConstraint(Sketcher.Constraint("Coincident", 14, 2, 15, 2))
sketch4.addConstraint(Sketcher.Constraint("Coincident", 15, 1, 16, 1))
sketch4.addConstraint(Sketcher.Constraint("Coincident", 16, 2, 17, 2))
sketch4.addConstraint(Sketcher.Constraint("Coincident", 17, 1, 18, 1))
sketch4.addConstraint(Sketcher.Constraint("Coincident", 18, 2, 19, 2))
sketch4.addConstraint(Sketcher.Constraint("Coincident", 19, 1, 20, 1))
sketch4.addConstraint(Sketcher.Constraint("Coincident", 20, 2, 21, 2))
sketch4.addConstraint(Sketcher.Constraint("Coincident", 21, 1, 22, 1))
sketch4.addConstraint(Sketcher.Constraint("Coincident", 22, 2, 23, 2))
sketch4.addConstraint(Sketcher.Constraint("Coincident", 23, 1, 24, 1))
sketch4.addConstraint(Sketcher.Constraint("Coincident", 24, 2, 25, 2))
sketch4.addConstraint(Sketcher.Constraint("Coincident", 25, 1, 26, 1))
sketch4.addConstraint(Sketcher.Constraint("Coincident", 26, 2, 27, 2))
sketch4.addConstraint(Sketcher.Constraint("Coincident", 27, 1, 28, 1))
sketch4.addConstraint(Sketcher.Constraint("Coincident", 28, 2, 29, 2))
sketch4.addConstraint(Sketcher.Constraint("Coincident", 29, 1, 30, 1))
sketch4.addConstraint(Sketcher.Constraint("Coincident", 30, 2, 31, 2))
sketch4.addConstraint(Sketcher.Constraint("Coincident", 31, 1, 0, 1))
sketch4.addConstraint(Sketcher.Constraint("Vertical", 0))
sketch4.addConstraint(Sketcher.Constraint("Vertical", 2))
sketch4.addConstraint(Sketcher.Constraint("Horizontal", 8))
sketch4.addConstraint(Sketcher.Constraint("Horizontal", 10))
sketch4.addConstraint(Sketcher.Constraint("Vertical", 16))
sketch4.addConstraint(Sketcher.Constraint("Vertical", 18))
sketch4.addConstraint(Sketcher.Constraint("Horizontal", 24))
sketch4.addConstraint(Sketcher.Constraint("Horizontal", 26))
sketch4.addConstraint(Sketcher.Constraint("Coincident", 1, 3, -1, 1))
sketch4.addConstraint(Sketcher.Constraint("Coincident", 3, 3, -1, 1))
sketch4.addConstraint(Sketcher.Constraint("Coincident", 5, 3, -1, 1))
sketch4.addConstraint(Sketcher.Constraint("Coincident", 7, 3, -1, 1))
sketch4.addConstraint(Sketcher.Constraint("Coincident", 9, 3, -1, 1))
sketch4.addConstraint(Sketcher.Constraint("Coincident", 11, 3, -1, 1))
sketch4.addConstraint(Sketcher.Constraint("Coincident", 13, 3, -1, 1))
sketch4.addConstraint(Sketcher.Constraint("Coincident", 15, 3, -1, 1))
sketch4.addConstraint(Sketcher.Constraint("Coincident", 17, 3, -1, 1))
sketch4.addConstraint(Sketcher.Constraint("Coincident", 19, 3, -1, 1))
sketch4.addConstraint(Sketcher.Constraint("Coincident", 21, 3, -1, 1))
sketch4.addConstraint(Sketcher.Constraint("Coincident", 23, 3, -1, 1))
sketch4.addConstraint(Sketcher.Constraint("Coincident", 25, 3, -1, 1))
sketch4.addConstraint(Sketcher.Constraint("Coincident", 27, 3, -1, 1))
sketch4.addConstraint(Sketcher.Constraint("Coincident", 29, 3, -1, 1))
sketch4.addConstraint(Sketcher.Constraint("Coincident", 31, 3, -1, 1))
sketch4.addConstraint(Sketcher.Constraint("Coincident", 32, 3, -1, 1))
sketch4.addConstraint(Sketcher.Constraint("Equal", 3, 7))
sketch4.addConstraint(Sketcher.Constraint("Equal", 1, 9))
sketch4.addConstraint(Sketcher.Constraint("Equal", 7, 11))
sketch4.addConstraint(Sketcher.Constraint("Equal", 5, 13))
sketch4.addConstraint(Sketcher.Constraint("Equal", 11, 15))
sketch4.addConstraint(Sketcher.Constraint("Equal", 9, 17))
sketch4.addConstraint(Sketcher.Constraint("Equal", 15, 19))
sketch4.addConstraint(Sketcher.Constraint("Equal", 13, 21))
sketch4.addConstraint(Sketcher.Constraint("Equal", 19, 23))
sketch4.addConstraint(Sketcher.Constraint("Equal", 17, 25))
sketch4.addConstraint(Sketcher.Constraint("Equal", 23, 27))
sketch4.addConstraint(Sketcher.Constraint("Equal", 21, 29))
sketch4.addConstraint(Sketcher.Constraint("Equal", 27, 31))
sketch4.addConstraint(Sketcher.Constraint("Parallel", 4, 6))
sketch4.addConstraint(Sketcher.Constraint("Perpendicular", 6, 12))
sketch4.addConstraint(Sketcher.Constraint("Parallel", 12, 14))
sketch4.addConstraint(Sketcher.Constraint("Perpendicular", 14, 20))
sketch4.addConstraint(Sketcher.Constraint("Parallel", 20, 22))
sketch4.addConstraint(Sketcher.Constraint("Perpendicular", 22, 28))
sketch4.addConstraint(Sketcher.Constraint("Parallel", 28, 30))
sketch4.addConstraint(Sketcher.Constraint("Horizontal", 0, 2, 1, 1))
sketch4.addConstraint(Sketcher.Constraint("Horizontal", 16, 2, 17, 1))
sketch4.addConstraint(Sketcher.Constraint("Horizontal", 14, 2, 19, 1))
sketch4.addConstraint(Sketcher.Constraint("Horizontal", 13, 1, 20, 2))
sketch4.addConstraint(Sketcher.Constraint("Horizontal", 12, 2, 21, 1))
sketch4.addConstraint(Sketcher.Constraint("Horizontal", 10, 2, 23, 1))
sketch4.addConstraint(Sketcher.Constraint("Horizontal", 8, 2, 25, 1))
sketch4.addConstraint(Sketcher.Constraint("Horizontal", 6, 2, 27, 1))
sketch4.addConstraint(Sketcher.Constraint("Horizontal", 4, 2, 29, 1))
sketch4.addConstraint(Sketcher.Constraint("Vertical", 8, 2, 9, 1))
sketch4.addConstraint(Sketcher.Constraint("Vertical", 6, 2, 11, 1))
sketch4.addConstraint(Sketcher.Constraint("Vertical", 4, 2, 13, 1))
sketch4.addConstraint(Sketcher.Constraint("Vertical", 2, 2, 15, 1))
sketch4.addConstraint(Sketcher.Constraint("Equal", 26, 0))
sketch4.addConstraint(Sketcher.Constraint("Equal", 4, 6))
sketch4.addConstraint(Sketcher.Constraint("Radius", 1, Q("1 in")))
sketch4.addConstraint(Sketcher.Constraint("Radius", 5, Q("1.0000001 in")))
sketch4.addConstraint(Sketcher.Constraint("Radius", 3, Q("0.5 in")))
sketch4.addConstraint(Sketcher.Constraint("Diameter", 32, Q("0.875 in")))
sketch4.addConstraint(Sketcher.Constraint("DistanceX", 0, 2, 1, 1, Q("0.05 in")))
sketch4.addConstraint(Sketcher.Constraint("DistanceX", 3, 1, 5, 1, Q("9.883901 mm")))
pad4 = body.newObject("PartDesign::Pad", "Pad003")
pad4.Profile = sketch4
pad4.Length = Q("0.35 in")
pad4.Reversed = True

# Sketch on XZ plane
sketch5 = body.newObject("Sketcher::SketchObject", "Sketch004")
sketch5.AttachmentSupport = (doc.getObject("XZ_Plane"), [""])
sketch5.MapMode = "FlatFace"
sketch5.AttachmentOffset = App.Placement(App.Vector(0, 0, -1 * 25.4), App.Rotation())
sketch5.addGeometry(Part.Circle(App.Vector(0, 0, 0), App.Vector(0, 0, 1), 25), False)
sketch5.addGeometry(Part.Circle(App.Vector(0, 0, 0), App.Vector(0, 0, 1), 11), False)
sketch5.addConstraint(Sketcher.Constraint("Coincident", 0, 3, -1, 1))
sketch5.addConstraint(Sketcher.Constraint("Coincident", 1, 3, -1, 1))
sketch5.addConstraint(Sketcher.Constraint("Diameter", 0, Q("2 in")))
sketch5.addConstraint(Sketcher.Constraint("Diameter", 1, Q("0.875 in")))
pad5 = body.newObject("PartDesign::Pad", "Pad004")
pad5.Profile = sketch5
pad5.Length = Q("0.1 in")
pad5.Reversed = True

doc.recompute()
